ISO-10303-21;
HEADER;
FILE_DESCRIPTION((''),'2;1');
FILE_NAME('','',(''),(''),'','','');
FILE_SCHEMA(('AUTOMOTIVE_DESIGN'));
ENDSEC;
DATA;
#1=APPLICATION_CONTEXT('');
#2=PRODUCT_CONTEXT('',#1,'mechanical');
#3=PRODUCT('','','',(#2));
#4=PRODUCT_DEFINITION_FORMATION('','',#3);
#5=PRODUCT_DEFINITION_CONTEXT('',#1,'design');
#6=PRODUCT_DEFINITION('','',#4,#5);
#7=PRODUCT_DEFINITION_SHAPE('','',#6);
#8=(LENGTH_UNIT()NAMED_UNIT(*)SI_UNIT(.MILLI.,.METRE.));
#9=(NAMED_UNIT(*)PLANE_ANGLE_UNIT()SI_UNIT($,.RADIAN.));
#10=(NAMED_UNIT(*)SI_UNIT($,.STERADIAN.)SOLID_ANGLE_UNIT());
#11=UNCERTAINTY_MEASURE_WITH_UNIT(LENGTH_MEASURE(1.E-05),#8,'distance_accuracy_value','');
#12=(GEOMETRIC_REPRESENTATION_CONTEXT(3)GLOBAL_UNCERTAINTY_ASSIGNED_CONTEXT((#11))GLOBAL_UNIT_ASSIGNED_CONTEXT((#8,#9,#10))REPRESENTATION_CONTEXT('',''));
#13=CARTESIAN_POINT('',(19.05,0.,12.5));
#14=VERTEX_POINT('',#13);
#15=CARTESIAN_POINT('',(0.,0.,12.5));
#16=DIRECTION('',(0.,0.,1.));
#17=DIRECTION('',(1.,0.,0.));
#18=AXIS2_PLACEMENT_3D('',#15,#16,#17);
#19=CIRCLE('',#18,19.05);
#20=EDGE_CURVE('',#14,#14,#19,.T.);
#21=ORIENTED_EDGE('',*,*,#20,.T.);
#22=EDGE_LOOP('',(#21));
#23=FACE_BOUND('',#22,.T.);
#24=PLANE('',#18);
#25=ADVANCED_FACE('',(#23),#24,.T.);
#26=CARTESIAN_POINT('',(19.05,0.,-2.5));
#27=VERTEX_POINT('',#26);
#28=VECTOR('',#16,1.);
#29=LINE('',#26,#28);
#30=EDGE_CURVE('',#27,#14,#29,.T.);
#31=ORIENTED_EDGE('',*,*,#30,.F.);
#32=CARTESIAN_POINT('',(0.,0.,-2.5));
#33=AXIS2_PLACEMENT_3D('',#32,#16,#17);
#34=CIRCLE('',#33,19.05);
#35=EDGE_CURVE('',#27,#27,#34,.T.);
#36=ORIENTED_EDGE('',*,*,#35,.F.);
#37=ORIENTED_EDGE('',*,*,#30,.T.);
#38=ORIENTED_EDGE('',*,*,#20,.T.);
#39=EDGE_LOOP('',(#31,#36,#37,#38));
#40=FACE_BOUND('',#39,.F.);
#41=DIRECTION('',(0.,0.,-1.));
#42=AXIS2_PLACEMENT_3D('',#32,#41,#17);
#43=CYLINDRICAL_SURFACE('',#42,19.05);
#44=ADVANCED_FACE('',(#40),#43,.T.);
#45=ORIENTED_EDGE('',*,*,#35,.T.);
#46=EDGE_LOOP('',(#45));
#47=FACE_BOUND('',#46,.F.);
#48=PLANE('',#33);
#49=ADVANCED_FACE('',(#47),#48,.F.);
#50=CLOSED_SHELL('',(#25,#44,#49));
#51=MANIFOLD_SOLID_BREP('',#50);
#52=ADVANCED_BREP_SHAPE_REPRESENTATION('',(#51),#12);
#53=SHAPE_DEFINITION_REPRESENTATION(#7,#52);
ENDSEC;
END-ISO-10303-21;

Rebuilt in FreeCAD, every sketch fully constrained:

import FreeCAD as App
import Part
import Sketcher
from FreeCAD import Vector
Q = App.Units.Quantity

doc = App.newDocument("Part")
params = doc.addObject("Spreadsheet::Sheet", "Params")
for row, (alias, value) in enumerate([
    ("sketch1_diameter", "38.1 mm"),
    ("pad1_length", "15 mm"),
], start=1):
    params.set(f"A{row}", alias)
    params.set(f"B{row}", "=" + value)
    params.setAlias(f"B{row}", alias)

body = doc.addObject("PartDesign::Body", "Body")

# Sketch on XY plane
sketch1 = doc.addObject("Sketcher::SketchObject", "Sketch")
body.addObject(sketch1)
sketch1.AttachmentSupport = (doc.XY_Plane, [""])
sketch1.MapMode = "FlatFace"
sketch1.AttachmentOffset = App.Placement(Vector(0, 0, -2.5), App.Rotation())
sketch1.addGeometry(Part.Circle(Vector(0, 0, 0), Vector(0, 0, 1), 19.05), False)
sketch1.addConstraint([
    Sketcher.Constraint("Coincident", 0, 3, -1, 1),
    Sketcher.Constraint("Diameter", 0, Q("38.1 mm")),
])
sketch1.setExpression("Constraints[1]", "Params.sketch1_diameter")
pad1 = doc.addObject("PartDesign::Pad", "Pad")
body.addObject(pad1)
pad1.Profile = sketch1
pad1.setExpression("Length", "Params.pad1_length")

doc.recompute()
